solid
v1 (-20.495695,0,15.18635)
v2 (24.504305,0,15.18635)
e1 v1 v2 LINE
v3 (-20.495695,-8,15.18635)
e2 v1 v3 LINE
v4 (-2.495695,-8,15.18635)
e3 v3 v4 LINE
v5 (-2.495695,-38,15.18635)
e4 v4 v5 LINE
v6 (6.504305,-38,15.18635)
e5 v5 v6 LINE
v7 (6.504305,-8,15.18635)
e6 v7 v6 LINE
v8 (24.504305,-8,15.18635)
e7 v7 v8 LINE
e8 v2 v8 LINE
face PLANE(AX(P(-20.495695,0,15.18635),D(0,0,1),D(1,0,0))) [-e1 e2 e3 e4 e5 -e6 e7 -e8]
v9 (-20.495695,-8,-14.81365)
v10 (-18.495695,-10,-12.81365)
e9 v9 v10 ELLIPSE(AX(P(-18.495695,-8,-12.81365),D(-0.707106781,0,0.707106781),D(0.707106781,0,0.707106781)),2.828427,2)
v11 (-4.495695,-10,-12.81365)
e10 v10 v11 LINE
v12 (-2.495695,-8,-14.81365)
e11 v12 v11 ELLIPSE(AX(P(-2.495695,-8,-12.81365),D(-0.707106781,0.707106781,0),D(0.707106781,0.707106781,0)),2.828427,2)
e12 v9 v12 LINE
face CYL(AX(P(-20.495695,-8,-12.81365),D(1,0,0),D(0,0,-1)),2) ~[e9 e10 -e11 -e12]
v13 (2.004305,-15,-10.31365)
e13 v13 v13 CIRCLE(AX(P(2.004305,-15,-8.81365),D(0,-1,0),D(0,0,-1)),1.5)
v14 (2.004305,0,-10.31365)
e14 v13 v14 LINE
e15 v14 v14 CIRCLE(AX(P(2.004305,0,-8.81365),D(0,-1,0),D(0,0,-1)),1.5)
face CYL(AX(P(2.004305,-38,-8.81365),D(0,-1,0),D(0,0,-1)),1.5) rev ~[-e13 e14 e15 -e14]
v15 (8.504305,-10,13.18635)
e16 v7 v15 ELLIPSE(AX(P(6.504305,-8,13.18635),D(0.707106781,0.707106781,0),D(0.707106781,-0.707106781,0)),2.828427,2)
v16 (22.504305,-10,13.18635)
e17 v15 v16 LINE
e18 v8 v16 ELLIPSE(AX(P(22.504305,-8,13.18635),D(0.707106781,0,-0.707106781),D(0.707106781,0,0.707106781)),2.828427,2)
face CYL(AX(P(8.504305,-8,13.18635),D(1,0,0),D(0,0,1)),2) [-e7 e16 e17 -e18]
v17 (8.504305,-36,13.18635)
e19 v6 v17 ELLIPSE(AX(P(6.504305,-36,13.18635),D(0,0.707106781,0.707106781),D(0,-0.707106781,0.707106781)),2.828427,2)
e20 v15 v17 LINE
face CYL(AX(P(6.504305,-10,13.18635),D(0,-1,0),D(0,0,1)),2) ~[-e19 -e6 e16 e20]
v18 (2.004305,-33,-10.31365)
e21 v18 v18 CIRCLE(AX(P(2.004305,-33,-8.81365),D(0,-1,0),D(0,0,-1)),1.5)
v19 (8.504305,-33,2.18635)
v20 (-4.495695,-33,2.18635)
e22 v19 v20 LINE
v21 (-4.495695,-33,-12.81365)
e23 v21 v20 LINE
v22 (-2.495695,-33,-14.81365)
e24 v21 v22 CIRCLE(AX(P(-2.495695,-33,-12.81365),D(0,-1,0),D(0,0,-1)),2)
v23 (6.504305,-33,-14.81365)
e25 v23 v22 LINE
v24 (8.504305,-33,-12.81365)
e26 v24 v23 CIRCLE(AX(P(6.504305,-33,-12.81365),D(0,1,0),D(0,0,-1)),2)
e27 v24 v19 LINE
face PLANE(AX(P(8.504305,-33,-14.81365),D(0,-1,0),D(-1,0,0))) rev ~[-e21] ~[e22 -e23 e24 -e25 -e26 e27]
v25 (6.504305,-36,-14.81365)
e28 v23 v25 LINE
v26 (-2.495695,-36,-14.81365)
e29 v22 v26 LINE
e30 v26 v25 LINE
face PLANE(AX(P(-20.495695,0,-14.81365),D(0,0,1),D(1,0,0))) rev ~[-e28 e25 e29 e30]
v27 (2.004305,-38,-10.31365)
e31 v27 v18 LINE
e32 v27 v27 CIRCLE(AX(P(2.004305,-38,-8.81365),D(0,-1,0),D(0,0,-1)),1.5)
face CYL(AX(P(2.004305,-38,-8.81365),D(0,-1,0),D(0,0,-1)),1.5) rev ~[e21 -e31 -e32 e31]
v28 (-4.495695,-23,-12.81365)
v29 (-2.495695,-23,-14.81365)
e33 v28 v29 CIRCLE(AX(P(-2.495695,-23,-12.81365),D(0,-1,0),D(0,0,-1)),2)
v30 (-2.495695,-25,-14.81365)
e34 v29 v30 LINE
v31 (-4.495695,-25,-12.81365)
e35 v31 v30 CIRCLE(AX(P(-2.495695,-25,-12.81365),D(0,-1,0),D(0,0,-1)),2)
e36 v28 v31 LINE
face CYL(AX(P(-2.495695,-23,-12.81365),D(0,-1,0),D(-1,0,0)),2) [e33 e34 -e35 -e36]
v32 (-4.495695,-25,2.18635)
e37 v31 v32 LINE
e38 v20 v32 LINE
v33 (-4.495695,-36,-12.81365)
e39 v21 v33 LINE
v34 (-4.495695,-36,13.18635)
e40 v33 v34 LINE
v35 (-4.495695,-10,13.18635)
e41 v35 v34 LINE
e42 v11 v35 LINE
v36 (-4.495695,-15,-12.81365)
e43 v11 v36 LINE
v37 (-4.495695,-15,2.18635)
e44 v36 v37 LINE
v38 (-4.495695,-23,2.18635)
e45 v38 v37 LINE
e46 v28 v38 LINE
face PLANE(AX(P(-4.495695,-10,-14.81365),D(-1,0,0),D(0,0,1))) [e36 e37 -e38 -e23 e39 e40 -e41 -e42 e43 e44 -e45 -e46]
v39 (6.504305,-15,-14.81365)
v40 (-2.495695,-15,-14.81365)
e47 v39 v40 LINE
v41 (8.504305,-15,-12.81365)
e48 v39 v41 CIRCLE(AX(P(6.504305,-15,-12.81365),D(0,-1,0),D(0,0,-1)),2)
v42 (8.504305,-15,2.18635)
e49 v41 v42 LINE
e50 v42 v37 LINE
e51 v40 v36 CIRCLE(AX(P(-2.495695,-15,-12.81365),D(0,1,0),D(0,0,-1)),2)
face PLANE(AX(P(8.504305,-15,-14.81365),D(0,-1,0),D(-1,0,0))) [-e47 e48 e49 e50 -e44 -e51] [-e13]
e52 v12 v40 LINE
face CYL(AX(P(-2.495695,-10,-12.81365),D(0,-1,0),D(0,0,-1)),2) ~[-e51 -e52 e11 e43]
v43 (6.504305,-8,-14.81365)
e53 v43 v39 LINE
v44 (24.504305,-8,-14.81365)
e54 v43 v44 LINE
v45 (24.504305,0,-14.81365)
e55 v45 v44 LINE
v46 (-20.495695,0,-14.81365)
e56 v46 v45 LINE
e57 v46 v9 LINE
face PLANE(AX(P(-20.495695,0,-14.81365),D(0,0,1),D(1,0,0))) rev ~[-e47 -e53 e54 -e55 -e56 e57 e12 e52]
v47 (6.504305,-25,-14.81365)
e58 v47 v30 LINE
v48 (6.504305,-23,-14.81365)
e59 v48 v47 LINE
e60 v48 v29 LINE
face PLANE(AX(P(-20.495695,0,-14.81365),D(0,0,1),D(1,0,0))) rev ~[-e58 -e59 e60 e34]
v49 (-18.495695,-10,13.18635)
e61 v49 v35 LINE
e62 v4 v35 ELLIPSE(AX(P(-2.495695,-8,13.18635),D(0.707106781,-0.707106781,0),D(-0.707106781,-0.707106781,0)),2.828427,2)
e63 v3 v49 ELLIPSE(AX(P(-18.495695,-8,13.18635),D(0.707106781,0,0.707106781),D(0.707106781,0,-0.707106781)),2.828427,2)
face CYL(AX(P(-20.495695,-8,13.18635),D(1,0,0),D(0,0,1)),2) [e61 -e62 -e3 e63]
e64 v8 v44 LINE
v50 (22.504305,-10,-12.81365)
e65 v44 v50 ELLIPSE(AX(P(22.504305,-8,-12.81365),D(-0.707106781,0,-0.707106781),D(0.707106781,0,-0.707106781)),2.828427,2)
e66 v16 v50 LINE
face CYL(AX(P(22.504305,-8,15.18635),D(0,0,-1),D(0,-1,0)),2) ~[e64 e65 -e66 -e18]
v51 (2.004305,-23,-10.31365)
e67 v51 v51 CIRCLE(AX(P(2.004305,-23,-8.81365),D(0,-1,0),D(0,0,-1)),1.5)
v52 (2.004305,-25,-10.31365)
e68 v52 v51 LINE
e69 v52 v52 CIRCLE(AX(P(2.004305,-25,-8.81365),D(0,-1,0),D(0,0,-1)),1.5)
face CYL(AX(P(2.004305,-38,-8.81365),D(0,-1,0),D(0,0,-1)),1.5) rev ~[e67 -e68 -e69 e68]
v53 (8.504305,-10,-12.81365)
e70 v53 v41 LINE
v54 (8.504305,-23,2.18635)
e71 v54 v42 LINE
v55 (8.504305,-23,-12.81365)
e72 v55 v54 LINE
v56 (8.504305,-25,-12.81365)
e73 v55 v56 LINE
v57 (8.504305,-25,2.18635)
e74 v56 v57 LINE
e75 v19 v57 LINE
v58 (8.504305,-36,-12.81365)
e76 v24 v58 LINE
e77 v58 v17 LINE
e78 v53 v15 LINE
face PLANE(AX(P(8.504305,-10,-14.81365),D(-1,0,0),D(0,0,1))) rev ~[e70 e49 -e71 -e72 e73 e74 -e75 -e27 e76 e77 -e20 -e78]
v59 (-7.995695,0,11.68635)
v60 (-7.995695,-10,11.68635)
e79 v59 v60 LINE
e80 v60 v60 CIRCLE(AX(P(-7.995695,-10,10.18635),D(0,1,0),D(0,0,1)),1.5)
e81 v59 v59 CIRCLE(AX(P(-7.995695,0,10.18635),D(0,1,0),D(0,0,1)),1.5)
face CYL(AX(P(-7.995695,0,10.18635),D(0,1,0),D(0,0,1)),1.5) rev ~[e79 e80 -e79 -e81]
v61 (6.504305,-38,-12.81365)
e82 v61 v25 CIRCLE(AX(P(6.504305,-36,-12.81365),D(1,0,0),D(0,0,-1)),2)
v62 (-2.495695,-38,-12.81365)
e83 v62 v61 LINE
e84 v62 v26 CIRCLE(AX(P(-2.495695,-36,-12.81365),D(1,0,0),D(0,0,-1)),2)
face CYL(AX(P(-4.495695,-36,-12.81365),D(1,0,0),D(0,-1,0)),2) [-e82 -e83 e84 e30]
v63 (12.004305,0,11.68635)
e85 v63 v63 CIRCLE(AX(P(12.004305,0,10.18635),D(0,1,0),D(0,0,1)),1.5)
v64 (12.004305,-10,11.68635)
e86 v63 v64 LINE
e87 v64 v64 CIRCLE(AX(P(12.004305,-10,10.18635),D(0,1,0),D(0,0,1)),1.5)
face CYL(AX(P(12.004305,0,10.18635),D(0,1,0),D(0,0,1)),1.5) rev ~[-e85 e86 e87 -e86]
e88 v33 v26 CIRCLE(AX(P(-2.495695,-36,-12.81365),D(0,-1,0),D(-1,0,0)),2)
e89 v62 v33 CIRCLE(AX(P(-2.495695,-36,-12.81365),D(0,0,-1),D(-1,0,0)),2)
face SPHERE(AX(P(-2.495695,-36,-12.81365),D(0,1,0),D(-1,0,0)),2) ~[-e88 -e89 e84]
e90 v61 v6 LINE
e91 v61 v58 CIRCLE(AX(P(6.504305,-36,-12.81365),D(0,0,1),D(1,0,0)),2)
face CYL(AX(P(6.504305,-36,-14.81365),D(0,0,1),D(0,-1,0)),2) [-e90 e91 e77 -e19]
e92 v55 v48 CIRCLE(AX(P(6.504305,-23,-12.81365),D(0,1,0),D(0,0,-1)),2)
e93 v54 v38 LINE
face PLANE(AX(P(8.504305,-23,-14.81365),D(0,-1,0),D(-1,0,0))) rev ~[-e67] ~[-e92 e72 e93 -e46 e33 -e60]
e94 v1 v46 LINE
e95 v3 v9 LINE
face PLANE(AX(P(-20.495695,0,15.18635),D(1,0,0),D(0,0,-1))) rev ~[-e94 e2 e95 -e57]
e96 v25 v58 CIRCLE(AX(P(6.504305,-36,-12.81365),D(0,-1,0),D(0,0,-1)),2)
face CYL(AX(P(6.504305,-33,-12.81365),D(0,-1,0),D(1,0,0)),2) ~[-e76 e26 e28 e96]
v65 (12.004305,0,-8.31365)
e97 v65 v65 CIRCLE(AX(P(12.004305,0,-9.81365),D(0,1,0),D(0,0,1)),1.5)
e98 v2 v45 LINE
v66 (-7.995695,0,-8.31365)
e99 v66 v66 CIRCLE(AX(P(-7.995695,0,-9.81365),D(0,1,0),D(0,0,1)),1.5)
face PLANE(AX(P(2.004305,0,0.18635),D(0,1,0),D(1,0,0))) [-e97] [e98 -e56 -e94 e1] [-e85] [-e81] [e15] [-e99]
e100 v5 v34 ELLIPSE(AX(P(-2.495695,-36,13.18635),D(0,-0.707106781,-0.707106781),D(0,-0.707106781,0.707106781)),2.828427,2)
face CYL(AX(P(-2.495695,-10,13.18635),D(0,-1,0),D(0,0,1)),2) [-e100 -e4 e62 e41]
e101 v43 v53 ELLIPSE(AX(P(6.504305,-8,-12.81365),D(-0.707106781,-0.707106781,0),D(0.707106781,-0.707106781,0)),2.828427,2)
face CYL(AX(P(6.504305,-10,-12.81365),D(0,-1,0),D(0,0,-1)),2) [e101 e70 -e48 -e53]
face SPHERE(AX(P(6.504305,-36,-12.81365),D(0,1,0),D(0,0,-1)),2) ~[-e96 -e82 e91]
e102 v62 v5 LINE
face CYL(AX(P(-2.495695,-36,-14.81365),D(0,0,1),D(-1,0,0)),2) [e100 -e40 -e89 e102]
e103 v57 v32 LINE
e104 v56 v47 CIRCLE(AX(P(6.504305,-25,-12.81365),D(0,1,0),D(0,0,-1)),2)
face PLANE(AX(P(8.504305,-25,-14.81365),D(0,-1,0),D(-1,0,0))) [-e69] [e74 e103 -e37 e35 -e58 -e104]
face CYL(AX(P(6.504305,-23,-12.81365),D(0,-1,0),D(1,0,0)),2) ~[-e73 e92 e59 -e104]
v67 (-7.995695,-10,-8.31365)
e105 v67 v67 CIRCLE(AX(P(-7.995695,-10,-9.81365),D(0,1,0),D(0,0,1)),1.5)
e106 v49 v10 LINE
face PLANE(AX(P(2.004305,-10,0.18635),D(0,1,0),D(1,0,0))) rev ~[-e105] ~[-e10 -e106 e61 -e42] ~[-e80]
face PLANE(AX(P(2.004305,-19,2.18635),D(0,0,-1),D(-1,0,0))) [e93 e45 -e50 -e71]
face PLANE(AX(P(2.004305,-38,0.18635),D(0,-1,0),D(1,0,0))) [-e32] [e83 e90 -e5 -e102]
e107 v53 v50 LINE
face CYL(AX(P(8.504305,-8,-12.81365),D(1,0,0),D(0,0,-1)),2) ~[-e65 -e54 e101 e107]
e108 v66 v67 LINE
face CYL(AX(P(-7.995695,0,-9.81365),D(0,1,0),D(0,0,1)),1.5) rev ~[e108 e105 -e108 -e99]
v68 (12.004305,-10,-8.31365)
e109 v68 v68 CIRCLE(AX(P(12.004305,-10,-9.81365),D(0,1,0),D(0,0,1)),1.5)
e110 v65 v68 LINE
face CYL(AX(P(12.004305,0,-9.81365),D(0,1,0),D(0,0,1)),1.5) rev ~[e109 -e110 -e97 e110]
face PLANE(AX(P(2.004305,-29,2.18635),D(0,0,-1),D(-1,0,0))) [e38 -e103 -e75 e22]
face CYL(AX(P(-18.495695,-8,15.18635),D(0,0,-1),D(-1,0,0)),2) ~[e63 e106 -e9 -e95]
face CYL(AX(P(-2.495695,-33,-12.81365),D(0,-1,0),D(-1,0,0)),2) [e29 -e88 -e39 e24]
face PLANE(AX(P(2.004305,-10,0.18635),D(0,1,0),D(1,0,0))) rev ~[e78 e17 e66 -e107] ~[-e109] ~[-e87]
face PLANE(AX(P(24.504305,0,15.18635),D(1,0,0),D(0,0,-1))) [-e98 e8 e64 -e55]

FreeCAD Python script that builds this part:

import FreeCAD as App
import Part
import Sketcher


def edges_at(feature, points):
    """Names of the edges that pass closest to the given points."""
    edges = feature.Shape.Edges
    near = lambda p: min(range(len(edges)), key=lambda i: edges[i].distToShape(Part.Vertex(*p))[0])
    return sorted({f"Edge{near(p) + 1}" for p in points})

doc = App.newDocument("Part")
body = doc.addObject("PartDesign::Body", "Body")

# Sketch on XZ plane
sketch1 = body.newObject("Sketcher::SketchObject", "Sketch")
sketch1.AttachmentSupport = (doc.getObject("XZ_Plane"), [""])
sketch1.MapMode = "FlatFace"
sketch1.addGeometry([
    Part.LineSegment(App.Vector(-20.5, -14.8, 0), App.Vector(-20.5, 15.2, 0)),  # 0
    Part.LineSegment(App.Vector(-20.5, 15.2, 0), App.Vector(24.5, 15.2, 0)),  # 1
    Part.LineSegment(App.Vector(24.5, 15.2, 0), App.Vector(24.5, -14.8, 0)),  # 2
    Part.LineSegment(App.Vector(24.5, -14.8, 0), App.Vector(-20.5, -14.8, 0)),  # 3
    Part.Circle(App.Vector(-8, 10.2, 0), App.Vector(0, 0, 1), 1.5),  # 4
    Part.Circle(App.Vector(12, 10.2, 0), App.Vector(0, 0, 1), 1.5),  # 5
    Part.Circle(App.Vector(-8, -9.8, 0), App.Vector(0, 0, 1), 1.5),  # 6
    Part.Circle(App.Vector(12, -9.8, 0), App.Vector(0, 0, 1), 1.5),  # 7
], False)
sketch1.addConstraint([
    Sketcher.Constraint("Coincident", 0, 2, 1, 1),
    Sketcher.Constraint("Coincident", 1, 2, 2, 1),
    Sketcher.Constraint("Coincident", 2, 2, 3, 1),
    Sketcher.Constraint("Coincident", 3, 2, 0, 1),
    Sketcher.Constraint("Vertical", 0),
    Sketcher.Constraint("Horizontal", 1),
    Sketcher.Constraint("Vertical", 2),
    Sketcher.Constraint("Horizontal", 3),
    Sketcher.Constraint("Equal", 4, 5),
    Sketcher.Constraint("Equal", 5, 6),
    Sketcher.Constraint("Equal", 6, 7),
    Sketcher.Constraint("Horizontal", 4, 3, 5, 3),
    Sketcher.Constraint("Horizontal", 6, 3, 7, 3),
    Sketcher.Constraint("Vertical", 4, 3, 6, 3),
    Sketcher.Constraint("Vertical", 5, 3, 7, 3),
    Sketcher.Constraint("Diameter", 4, 3.0),
    Sketcher.Constraint("DistanceX", 1, 1, 1, 2, 45.0),
    Sketcher.Constraint("DistanceY", 0, 1, 0, 2, 30.0),
    Sketcher.Constraint("DistanceX", 4, 3, 5, 3, 20.0),
    Sketcher.Constraint("DistanceY", 6, 3, 4, 3, 20.0),
    Sketcher.Constraint("DistanceY", 4, 3, 0, 2, 5.0),
    Sketcher.Constraint("DistanceX", 0, 2, 4, 3, 12.5),
    Sketcher.Constraint("DistanceY", -1, 1, 4, 3, 10.18635),
    Sketcher.Constraint("DistanceX", 4, 3, -1, 1, 7.995695),
])
pad1 = body.newObject("PartDesign::Pad", "Pad")
pad1.Profile = sketch1
pad1.Length = 10

# Sketch on XZ plane
sketch2 = body.newObject("Sketcher::SketchObject", "Sketch001")
sketch2.AttachmentSupport = (doc.getObject("XZ_Plane"), [""])
sketch2.MapMode = "FlatFace"
sketch2.AttachmentOffset = App.Placement(App.Vector(0, 0, 10), App.Rotation())
sketch2.addGeometry([
    Part.LineSegment(App.Vector(-4, 15, 0), App.Vector(-4, -15, 0)),
    Part.LineSegment(App.Vector(-4, -15, 0), App.Vector(9, -15, 0)),
    Part.LineSegment(App.Vector(9, -15, 0), App.Vector(9, 15, 0)),
    Part.LineSegment(App.Vector(9, 15, 0), App.Vector(-4, 15, 0)),
], False)
sketch2.addConstraint([
    Sketcher.Constraint("Coincident", 0, 2, 1, 1),
    Sketcher.Constraint("Coincident", 1, 2, 2, 1),
    Sketcher.Constraint("Coincident", 2, 2, 3, 1),
    Sketcher.Constraint("Coincident", 3, 2, 0, 1),
    Sketcher.Constraint("Vertical", 0),
    Sketcher.Constraint("Horizontal", 1),
    Sketcher.Constraint("Vertical", 2),
    Sketcher.Constraint("Horizontal", 3),
    Sketcher.Constraint("DistanceX", 1, 1, 1, 2, 13.0),
    Sketcher.Constraint("DistanceY", 0, 2, 0, 1, 30.0),
    Sketcher.Constraint("DistanceY", 0, 2, -1, 1, 14.81365),
    Sketcher.Constraint("DistanceX", 0, 2, -1, 1, 4.495695),
])
pad2 = body.newObject("PartDesign::Pad", "Pad001")
pad2.Profile = sketch2
pad2.Length = 28

# Sketch on XY plane
sketch3 = body.newObject("Sketcher::SketchObject", "Sketch002")
sketch3.AttachmentSupport = (doc.getObject("XY_Plane"), [""])
sketch3.MapMode = "FlatFace"
sketch3.AttachmentOffset = App.Placement(App.Vector(0, 0, -14.81365), App.Rotation())
sketch3.addGeometry([
    Part.LineSegment(App.Vector(9, -25, 0), App.Vector(9, -33, 0)),  # 0
    Part.LineSegment(App.Vector(9, -33, 0), App.Vector(-4, -33, 0)),  # 1
    Part.LineSegment(App.Vector(-4, -33, 0), App.Vector(-4, -25, 0)),  # 2
    Part.LineSegment(App.Vector(-4, -25, 0), App.Vector(9, -25, 0)),  # 3
    Part.LineSegment(App.Vector(9, -15, 0), App.Vector(9, -23, 0)),  # 4
    Part.LineSegment(App.Vector(9, -23, 0), App.Vector(-4, -23, 0)),  # 5
    Part.LineSegment(App.Vector(-4, -23, 0), App.Vector(-4, -15, 0)),  # 6
    Part.LineSegment(App.Vector(-4, -15, 0), App.Vector(9, -15, 0)),  # 7
], False)
sketch3.addConstraint([
    Sketcher.Constraint("Coincident", 0, 2, 1, 1),
    Sketcher.Constraint("Coincident", 1, 2, 2, 1),
    Sketcher.Constraint("Coincident", 2, 2, 3, 1),
    Sketcher.Constraint("Coincident", 3, 2, 0, 1),
    Sketcher.Constraint("Coincident", 4, 2, 5, 1),
    Sketcher.Constraint("Coincident", 5, 2, 6, 1),
    Sketcher.Constraint("Coincident", 6, 2, 7, 1),
    Sketcher.Constraint("Coincident", 7, 2, 4, 1),
    Sketcher.Constraint("Vertical", 0),
    Sketcher.Constraint("Horizontal", 1),
    Sketcher.Constraint("Vertical", 2),
    Sketcher.Constraint("Horizontal", 3),
    Sketcher.Constraint("Vertical", 4),
    Sketcher.Constraint("Horizontal", 5),
    Sketcher.Constraint("Vertical", 6),
    Sketcher.Constraint("Horizontal", 7),
    Sketcher.Constraint("Vertical", 3, 2, 4, 2),
    Sketcher.Constraint("Vertical", 2, 2, 5, 2),
    Sketcher.Constraint("Equal", 2, 4),
    Sketcher.Constraint("DistanceX", 1, 2, 1, 1, 13.0),
    Sketcher.Constraint("DistanceY", 0, 2, 0, 1, 8.0),
    Sketcher.Constraint("DistanceY", 0, 2, -1, 1, 33.0),
    Sketcher.Constraint("DistanceY", 4, 2, -1, 1, 23.0),
    Sketcher.Constraint("DistanceX", -1, 1, 0, 2, 8.504305),
])
pocket1 = body.newObject("PartDesign::Pocket", "Pocket")
pocket1.Profile = sketch3
pocket1.Length = 17
pocket1.Reversed = True

# Sketch on XZ plane
sketch4 = body.newObject("Sketcher::SketchObject", "Sketch003")
sketch4.AttachmentSupport = (doc.getObject("XZ_Plane"), [""])
sketch4.MapMode = "FlatFace"
sketch4.AttachmentOffset = App.Placement(App.Vector(0, 0, 38), App.Rotation())
sketch4.addGeometry(Part.Circle(App.Vector(2, -8.8, 0), App.Vector(0, 0, 1), 1.5), False)
sketch4.addConstraint([
    Sketcher.Constraint("Diameter", 0, 3.0),
    Sketcher.Constraint("DistanceY", 0, 3, -1, 1, 8.81365),
    Sketcher.Constraint("DistanceX", -1, 1, 0, 3, 2.004305),
])
pocket2 = body.newObject("PartDesign::Pocket", "Pocket001")
pocket2.Profile = sketch4
pocket2.Type = "ThroughAll"
doc.recompute()

fillet = body.newObject("PartDesign::Fillet", "Fillet")
fillet.Base = (pocket2, edges_at(pocket2, [
    (16.504, -10, 15.186),
    (16.504, -10, -14.814),
    (24.504, -10, 0.186),
    (-4.496, -24, 15.186),
    (-4.496, -35.5, -14.814),
    (8.504, -35.5, -14.814),
    (8.504, -24, 15.186),
    (-4.496, -38, 0.186),
    (2.004, -38, -14.814),
    (8.504, -38, 0.186),
    (-12.496, -10, -14.814),
    (-20.496, -10, 0.186),
    (8.504, -24, -14.814),
    (8.504, -12.5, -14.814),
    (-12.496, -10, 15.186),
    (-4.496, -24, -14.814),
    (-4.496, -12.5, -14.814),
]))
fillet.Radius = 2

doc.recompute()
